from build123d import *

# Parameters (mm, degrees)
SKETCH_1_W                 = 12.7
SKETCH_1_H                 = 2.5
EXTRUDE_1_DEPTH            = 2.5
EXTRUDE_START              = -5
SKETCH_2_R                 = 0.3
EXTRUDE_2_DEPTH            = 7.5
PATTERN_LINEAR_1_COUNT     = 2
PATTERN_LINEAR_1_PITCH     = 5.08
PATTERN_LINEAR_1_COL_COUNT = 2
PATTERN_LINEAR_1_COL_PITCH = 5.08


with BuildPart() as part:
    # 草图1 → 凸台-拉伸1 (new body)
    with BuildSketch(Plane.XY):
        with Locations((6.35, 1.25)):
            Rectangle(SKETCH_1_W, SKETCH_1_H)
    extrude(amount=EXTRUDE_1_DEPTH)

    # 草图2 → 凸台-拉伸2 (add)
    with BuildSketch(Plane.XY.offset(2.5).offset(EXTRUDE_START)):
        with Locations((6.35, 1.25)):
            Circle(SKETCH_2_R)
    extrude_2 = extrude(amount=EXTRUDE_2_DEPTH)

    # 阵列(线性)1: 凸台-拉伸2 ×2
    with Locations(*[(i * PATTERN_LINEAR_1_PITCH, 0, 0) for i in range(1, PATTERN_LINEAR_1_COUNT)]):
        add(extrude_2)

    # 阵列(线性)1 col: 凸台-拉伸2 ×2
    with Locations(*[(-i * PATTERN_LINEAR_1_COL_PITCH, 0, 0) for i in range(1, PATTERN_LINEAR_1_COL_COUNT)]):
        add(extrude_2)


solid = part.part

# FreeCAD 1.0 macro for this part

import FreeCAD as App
import Part
import Sketcher
from FreeCAD import Vector

doc = App.newDocument("Part")
body = doc.addObject("PartDesign::Body", "Body")

# Sketch on XY plane
sketch1 = body.newObject("Sketcher::SketchObject", "Sketch")
sketch1.AttachmentSupport = (doc.getObject("XY_Plane"), [""])
sketch1.MapMode = "FlatFace"
sketch1.addGeometry([
    Part.LineSegment(Vector(0, 2.5, 0), Vector(0, 0, 0)),
    Part.LineSegment(Vector(0, 0, 0), Vector(12.7, 0, 0)),
    Part.LineSegment(Vector(12.7, 0, 0), Vector(12.7, 2.5, 0)),
    Part.LineSegment(Vector(12.7, 2.5, 0), Vector(0, 2.5, 0)),
], False)
sketch1.addConstraint([
    Sketcher.Constraint("Coincident", 0, 2, 1, 1),
    Sketcher.Constraint("Coincident", 1, 2, 2, 1),
    Sketcher.Constraint("Coincident", 2, 2, 3, 1),
    Sketcher.Constraint("Coincident", 3, 2, 0, 1),
    Sketcher.Constraint("Vertical", 0),
    Sketcher.Constraint("Horizontal", 1),
    Sketcher.Constraint("Vertical", 2),
    Sketcher.Constraint("Horizontal", 3),
    Sketcher.Constraint("Coincident", 0, 2, -1, 1),
    Sketcher.Constraint("DistanceX", 1, 1, 1, 2, 12.7),
    Sketcher.Constraint("DistanceY", 0, 2, 0, 1, 2.5),
])
pad1 = body.newObject("PartDesign::Pad", "Pad")
pad1.Profile = sketch1
pad1.Length = 2.5

# Sketch on XY plane
sketch2 = body.newObject("Sketcher::SketchObject", "Sketch001")
sketch2.AttachmentSupport = (doc.getObject("XY_Plane"), [""])
sketch2.MapMode = "FlatFace"
sketch2.AttachmentOffset = App.Placement(Vector(0, 0, -2.5), App.Rotation())
sketch2.addGeometry(Part.Circle(Vector(6.35, 1.25, 0), Vector(0, 0, 1), 0.3), False)
sketch2.addConstraint([
    Sketcher.Constraint("Diameter", 0, 0.6),
    Sketcher.Constraint("DistanceX", -1, 1, 0, 3, 6.35),
    Sketcher.Constraint("DistanceY", -1, 1, 0, 3, 1.25),
])
pad2 = body.newObject("PartDesign::Pad", "Pad001")
pad2.Profile = sketch2
pad2.Length = 7.5
doc.recompute()

linearpattern = body.newObject("PartDesign::LinearPattern", "LinearPattern")
linearpattern.Originals = [pad2]
linearpattern.Direction = (doc.getObject("X_Axis"), [""])
linearpattern.Mode = "offset"
linearpattern.Offset = 5.08
linearpattern.Occurrences = 2
body.Tip = linearpattern
doc.recompute()

linearpattern2 = body.newObject("PartDesign::LinearPattern", "LinearPattern001")
linearpattern2.Originals = [pad2]
linearpattern2.Direction = (doc.getObject("X_Axis"), [""])
linearpattern2.Mode = "offset"
linearpattern2.Offset = 5.08
linearpattern2.Occurrences = 2
linearpattern2.Reversed = True
body.Tip = linearpattern2

doc.recompute()
